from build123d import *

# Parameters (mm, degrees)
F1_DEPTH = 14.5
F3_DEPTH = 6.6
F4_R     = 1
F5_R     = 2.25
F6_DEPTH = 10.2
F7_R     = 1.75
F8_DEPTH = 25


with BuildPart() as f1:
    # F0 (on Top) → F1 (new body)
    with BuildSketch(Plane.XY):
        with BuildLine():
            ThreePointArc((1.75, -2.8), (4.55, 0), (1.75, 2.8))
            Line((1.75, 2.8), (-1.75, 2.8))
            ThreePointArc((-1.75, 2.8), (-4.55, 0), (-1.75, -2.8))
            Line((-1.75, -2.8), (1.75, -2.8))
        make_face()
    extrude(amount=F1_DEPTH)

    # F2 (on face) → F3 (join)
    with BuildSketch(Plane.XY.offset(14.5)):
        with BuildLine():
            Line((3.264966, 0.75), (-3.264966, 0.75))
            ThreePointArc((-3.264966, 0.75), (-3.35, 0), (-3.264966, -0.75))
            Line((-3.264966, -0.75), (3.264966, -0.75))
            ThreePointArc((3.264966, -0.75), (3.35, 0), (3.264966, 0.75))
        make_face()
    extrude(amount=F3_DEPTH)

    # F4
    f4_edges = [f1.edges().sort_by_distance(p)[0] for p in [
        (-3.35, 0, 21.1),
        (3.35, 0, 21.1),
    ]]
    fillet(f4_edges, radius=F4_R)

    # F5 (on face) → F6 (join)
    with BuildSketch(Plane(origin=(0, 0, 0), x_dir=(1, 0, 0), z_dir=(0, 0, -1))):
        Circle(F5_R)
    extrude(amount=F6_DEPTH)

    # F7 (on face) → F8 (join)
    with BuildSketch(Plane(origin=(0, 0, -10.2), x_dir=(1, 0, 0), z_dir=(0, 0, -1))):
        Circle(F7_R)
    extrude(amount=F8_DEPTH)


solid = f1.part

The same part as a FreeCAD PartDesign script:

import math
import FreeCAD as App
import Part
import Sketcher
from FreeCAD import Vector


def edges_at(feature, points):
    """Names of the edges that pass closest to the given points."""
    edges = feature.Shape.Edges
    near = lambda p: min(range(len(edges)), key=lambda i: edges[i].distToShape(Part.Vertex(*p))[0])
    return sorted({f"Edge{near(p) + 1}" for p in points})

doc = App.newDocument("Part")
params = doc.addObject("Spreadsheet::Sheet", "Params")
for row, (alias, value) in enumerate([
    ("sketch1_radius", "2.8 mm"),
    ("sketch1_width", "3.5 mm"),
    ("pad1_length", "14.5 mm"),
    ("pad2_length", "6.6 mm"),
    ("fillet_radius", "1 mm"),
    ("sketch3_diameter", "4.5 mm"),
    ("pad3_length", "10.2 mm"),
    ("sketch4_diameter", "3.5 mm"),
    ("pad4_length", "25 mm"),
], start=1):
    params.set(f"A{row}", alias)
    params.set(f"B{row}", "=" + value)
    params.setAlias(f"B{row}", alias)

body = doc.addObject("PartDesign::Body", "Body")

# Sketch on XY plane
sketch1 = body.newObject("Sketcher::SketchObject", "Sketch")
sketch1.AttachmentSupport = (doc.getObject("XY_Plane"), [""])
sketch1.MapMode = "FlatFace"
sketch1.addGeometry([
    Part.ArcOfCircle(Part.Circle(Vector(1.8, 0, 0), Vector(0, 0, 1), 2.8), math.radians(-90), math.radians(90)),
    Part.LineSegment(Vector(1.8, 2.8, 0), Vector(-1.8, 2.8, 0)),
    Part.ArcOfCircle(Part.Circle(Vector(-1.8, 0, 0), Vector(0, 0, 1), 2.8), math.radians(90), math.radians(270)),
    Part.LineSegment(Vector(-1.8, -2.8, 0), Vector(1.8, -2.8, 0)),
], False)
sketch1.addConstraint([
    Sketcher.Constraint("Tangent", 0, 2, 1, 1),
    Sketcher.Constraint("Tangent", 1, 2, 2, 1),
    Sketcher.Constraint("Tangent", 2, 2, 3, 1),
    Sketcher.Constraint("Tangent", 3, 2, 0, 1),
    Sketcher.Constraint("Horizontal", 1),
    Sketcher.Constraint("Horizontal", 3),
    Sketcher.Constraint("Symmetric", 0, 3, 2, 3, -1, 1),
    Sketcher.Constraint("Radius", 0, 2.8),
    Sketcher.Constraint("DistanceX", 1, 2, 1, 1, 3.5),
])
sketch1.setExpression("Constraints[7]", "Params.sketch1_radius")
sketch1.setExpression("Constraints[8]", "Params.sketch1_width")
pad1 = body.newObject("PartDesign::Pad", "Pad")
pad1.Profile = sketch1
pad1.setExpression("Length", "Params.pad1_length")

# Sketch on XY plane
sketch2 = body.newObject("Sketcher::SketchObject", "Sketch001")
sketch2.AttachmentSupport = (doc.getObject("XY_Plane"), [""])
sketch2.MapMode = "FlatFace"
sketch2.AttachmentOffset = App.Placement(Vector(0, 0, 14.5), App.Rotation())
sketch2.addGeometry([
    Part.LineSegment(Vector(3.264966, 0.75, 0), Vector(-3.264966, 0.75, 0)),
    Part.ArcOfCircle(Part.Circle(Vector(0.000018, 0, 0), Vector(0, 0, 1), 3.350018), math.radians(167.063007), math.radians(192.936993)),
    Part.LineSegment(Vector(-3.264966, -0.75, 0), Vector(3.264966, -0.75, 0)),
    Part.ArcOfCircle(Part.Circle(Vector(-0.000018, 0, 0), Vector(0, 0, 1), 3.350018), math.radians(-12.936993), math.radians(12.936993)),
], False)
sketch2.addConstraint([
    Sketcher.Constraint("Coincident", 0, 2, 1, 1),
    Sketcher.Constraint("Coincident", 1, 2, 2, 1),
    Sketcher.Constraint("Coincident", 2, 2, 3, 1),
    Sketcher.Constraint("Coincident", 3, 2, 0, 1),
    Sketcher.Constraint("Horizontal", 0),
    Sketcher.Constraint("Horizontal", 2),
    Sketcher.Constraint("Equal", 1, 3),
    Sketcher.Constraint("Symmetric", 1, 3, 3, 3, -1, 1),
    Sketcher.Constraint("Symmetric", 0, 2, 1, 2, -1),
    Sketcher.Constraint("DistanceY", 1, 2, 0, 2, 1.5),
    Sketcher.Constraint("Radius", 1, 3.350018),
    Sketcher.Constraint("DistanceX", 0, 2, 0, 1, 6.529932),
])
pad2 = body.newObject("PartDesign::Pad", "Pad001")
pad2.Profile = sketch2
pad2.setExpression("Length", "Params.pad2_length")
doc.recompute()

fillet = body.newObject("PartDesign::Fillet", "Fillet")
fillet.Base = (pad2, edges_at(pad2, [(-3.35, 0, 21.1), (3.35, 0, 21.1)]))
fillet.setExpression("Radius", "Params.fillet_radius")

# Sketch on XY plane
sketch3 = body.newObject("Sketcher::SketchObject", "Sketch002")
sketch3.AttachmentSupport = (doc.getObject("XY_Plane"), [""])
sketch3.MapMode = "FlatFace"
sketch3.addGeometry(Part.Circle(Vector(0, 0, 0), Vector(0, 0, 1), 2.2), False)
sketch3.addConstraint([
    Sketcher.Constraint("Coincident", 0, 3, -1, 1),
    Sketcher.Constraint("Diameter", 0, 4.5),
])
sketch3.setExpression("Constraints[1]", "Params.sketch3_diameter")
pad3 = body.newObject("PartDesign::Pad", "Pad002")
pad3.Profile = sketch3
pad3.setExpression("Length", "Params.pad3_length")
pad3.Reversed = True

# Sketch on XY plane
sketch4 = body.newObject("Sketcher::SketchObject", "Sketch003")
sketch4.AttachmentSupport = (doc.getObject("XY_Plane"), [""])
sketch4.MapMode = "FlatFace"
sketch4.AttachmentOffset = App.Placement(Vector(0, 0, -10.2), App.Rotation())
sketch4.addGeometry(Part.Circle(Vector(0, 0, 0), Vector(0, 0, 1), 1.8), False)
sketch4.addConstraint([
    Sketcher.Constraint("Coincident", 0, 3, -1, 1),
    Sketcher.Constraint("Diameter", 0, 3.5),
])
sketch4.setExpression("Constraints[1]", "Params.sketch4_diameter")
pad4 = body.newObject("PartDesign::Pad", "Pad003")
pad4.Profile = sketch4
pad4.setExpression("Length", "Params.pad4_length")
pad4.Reversed = True

doc.recompute()
